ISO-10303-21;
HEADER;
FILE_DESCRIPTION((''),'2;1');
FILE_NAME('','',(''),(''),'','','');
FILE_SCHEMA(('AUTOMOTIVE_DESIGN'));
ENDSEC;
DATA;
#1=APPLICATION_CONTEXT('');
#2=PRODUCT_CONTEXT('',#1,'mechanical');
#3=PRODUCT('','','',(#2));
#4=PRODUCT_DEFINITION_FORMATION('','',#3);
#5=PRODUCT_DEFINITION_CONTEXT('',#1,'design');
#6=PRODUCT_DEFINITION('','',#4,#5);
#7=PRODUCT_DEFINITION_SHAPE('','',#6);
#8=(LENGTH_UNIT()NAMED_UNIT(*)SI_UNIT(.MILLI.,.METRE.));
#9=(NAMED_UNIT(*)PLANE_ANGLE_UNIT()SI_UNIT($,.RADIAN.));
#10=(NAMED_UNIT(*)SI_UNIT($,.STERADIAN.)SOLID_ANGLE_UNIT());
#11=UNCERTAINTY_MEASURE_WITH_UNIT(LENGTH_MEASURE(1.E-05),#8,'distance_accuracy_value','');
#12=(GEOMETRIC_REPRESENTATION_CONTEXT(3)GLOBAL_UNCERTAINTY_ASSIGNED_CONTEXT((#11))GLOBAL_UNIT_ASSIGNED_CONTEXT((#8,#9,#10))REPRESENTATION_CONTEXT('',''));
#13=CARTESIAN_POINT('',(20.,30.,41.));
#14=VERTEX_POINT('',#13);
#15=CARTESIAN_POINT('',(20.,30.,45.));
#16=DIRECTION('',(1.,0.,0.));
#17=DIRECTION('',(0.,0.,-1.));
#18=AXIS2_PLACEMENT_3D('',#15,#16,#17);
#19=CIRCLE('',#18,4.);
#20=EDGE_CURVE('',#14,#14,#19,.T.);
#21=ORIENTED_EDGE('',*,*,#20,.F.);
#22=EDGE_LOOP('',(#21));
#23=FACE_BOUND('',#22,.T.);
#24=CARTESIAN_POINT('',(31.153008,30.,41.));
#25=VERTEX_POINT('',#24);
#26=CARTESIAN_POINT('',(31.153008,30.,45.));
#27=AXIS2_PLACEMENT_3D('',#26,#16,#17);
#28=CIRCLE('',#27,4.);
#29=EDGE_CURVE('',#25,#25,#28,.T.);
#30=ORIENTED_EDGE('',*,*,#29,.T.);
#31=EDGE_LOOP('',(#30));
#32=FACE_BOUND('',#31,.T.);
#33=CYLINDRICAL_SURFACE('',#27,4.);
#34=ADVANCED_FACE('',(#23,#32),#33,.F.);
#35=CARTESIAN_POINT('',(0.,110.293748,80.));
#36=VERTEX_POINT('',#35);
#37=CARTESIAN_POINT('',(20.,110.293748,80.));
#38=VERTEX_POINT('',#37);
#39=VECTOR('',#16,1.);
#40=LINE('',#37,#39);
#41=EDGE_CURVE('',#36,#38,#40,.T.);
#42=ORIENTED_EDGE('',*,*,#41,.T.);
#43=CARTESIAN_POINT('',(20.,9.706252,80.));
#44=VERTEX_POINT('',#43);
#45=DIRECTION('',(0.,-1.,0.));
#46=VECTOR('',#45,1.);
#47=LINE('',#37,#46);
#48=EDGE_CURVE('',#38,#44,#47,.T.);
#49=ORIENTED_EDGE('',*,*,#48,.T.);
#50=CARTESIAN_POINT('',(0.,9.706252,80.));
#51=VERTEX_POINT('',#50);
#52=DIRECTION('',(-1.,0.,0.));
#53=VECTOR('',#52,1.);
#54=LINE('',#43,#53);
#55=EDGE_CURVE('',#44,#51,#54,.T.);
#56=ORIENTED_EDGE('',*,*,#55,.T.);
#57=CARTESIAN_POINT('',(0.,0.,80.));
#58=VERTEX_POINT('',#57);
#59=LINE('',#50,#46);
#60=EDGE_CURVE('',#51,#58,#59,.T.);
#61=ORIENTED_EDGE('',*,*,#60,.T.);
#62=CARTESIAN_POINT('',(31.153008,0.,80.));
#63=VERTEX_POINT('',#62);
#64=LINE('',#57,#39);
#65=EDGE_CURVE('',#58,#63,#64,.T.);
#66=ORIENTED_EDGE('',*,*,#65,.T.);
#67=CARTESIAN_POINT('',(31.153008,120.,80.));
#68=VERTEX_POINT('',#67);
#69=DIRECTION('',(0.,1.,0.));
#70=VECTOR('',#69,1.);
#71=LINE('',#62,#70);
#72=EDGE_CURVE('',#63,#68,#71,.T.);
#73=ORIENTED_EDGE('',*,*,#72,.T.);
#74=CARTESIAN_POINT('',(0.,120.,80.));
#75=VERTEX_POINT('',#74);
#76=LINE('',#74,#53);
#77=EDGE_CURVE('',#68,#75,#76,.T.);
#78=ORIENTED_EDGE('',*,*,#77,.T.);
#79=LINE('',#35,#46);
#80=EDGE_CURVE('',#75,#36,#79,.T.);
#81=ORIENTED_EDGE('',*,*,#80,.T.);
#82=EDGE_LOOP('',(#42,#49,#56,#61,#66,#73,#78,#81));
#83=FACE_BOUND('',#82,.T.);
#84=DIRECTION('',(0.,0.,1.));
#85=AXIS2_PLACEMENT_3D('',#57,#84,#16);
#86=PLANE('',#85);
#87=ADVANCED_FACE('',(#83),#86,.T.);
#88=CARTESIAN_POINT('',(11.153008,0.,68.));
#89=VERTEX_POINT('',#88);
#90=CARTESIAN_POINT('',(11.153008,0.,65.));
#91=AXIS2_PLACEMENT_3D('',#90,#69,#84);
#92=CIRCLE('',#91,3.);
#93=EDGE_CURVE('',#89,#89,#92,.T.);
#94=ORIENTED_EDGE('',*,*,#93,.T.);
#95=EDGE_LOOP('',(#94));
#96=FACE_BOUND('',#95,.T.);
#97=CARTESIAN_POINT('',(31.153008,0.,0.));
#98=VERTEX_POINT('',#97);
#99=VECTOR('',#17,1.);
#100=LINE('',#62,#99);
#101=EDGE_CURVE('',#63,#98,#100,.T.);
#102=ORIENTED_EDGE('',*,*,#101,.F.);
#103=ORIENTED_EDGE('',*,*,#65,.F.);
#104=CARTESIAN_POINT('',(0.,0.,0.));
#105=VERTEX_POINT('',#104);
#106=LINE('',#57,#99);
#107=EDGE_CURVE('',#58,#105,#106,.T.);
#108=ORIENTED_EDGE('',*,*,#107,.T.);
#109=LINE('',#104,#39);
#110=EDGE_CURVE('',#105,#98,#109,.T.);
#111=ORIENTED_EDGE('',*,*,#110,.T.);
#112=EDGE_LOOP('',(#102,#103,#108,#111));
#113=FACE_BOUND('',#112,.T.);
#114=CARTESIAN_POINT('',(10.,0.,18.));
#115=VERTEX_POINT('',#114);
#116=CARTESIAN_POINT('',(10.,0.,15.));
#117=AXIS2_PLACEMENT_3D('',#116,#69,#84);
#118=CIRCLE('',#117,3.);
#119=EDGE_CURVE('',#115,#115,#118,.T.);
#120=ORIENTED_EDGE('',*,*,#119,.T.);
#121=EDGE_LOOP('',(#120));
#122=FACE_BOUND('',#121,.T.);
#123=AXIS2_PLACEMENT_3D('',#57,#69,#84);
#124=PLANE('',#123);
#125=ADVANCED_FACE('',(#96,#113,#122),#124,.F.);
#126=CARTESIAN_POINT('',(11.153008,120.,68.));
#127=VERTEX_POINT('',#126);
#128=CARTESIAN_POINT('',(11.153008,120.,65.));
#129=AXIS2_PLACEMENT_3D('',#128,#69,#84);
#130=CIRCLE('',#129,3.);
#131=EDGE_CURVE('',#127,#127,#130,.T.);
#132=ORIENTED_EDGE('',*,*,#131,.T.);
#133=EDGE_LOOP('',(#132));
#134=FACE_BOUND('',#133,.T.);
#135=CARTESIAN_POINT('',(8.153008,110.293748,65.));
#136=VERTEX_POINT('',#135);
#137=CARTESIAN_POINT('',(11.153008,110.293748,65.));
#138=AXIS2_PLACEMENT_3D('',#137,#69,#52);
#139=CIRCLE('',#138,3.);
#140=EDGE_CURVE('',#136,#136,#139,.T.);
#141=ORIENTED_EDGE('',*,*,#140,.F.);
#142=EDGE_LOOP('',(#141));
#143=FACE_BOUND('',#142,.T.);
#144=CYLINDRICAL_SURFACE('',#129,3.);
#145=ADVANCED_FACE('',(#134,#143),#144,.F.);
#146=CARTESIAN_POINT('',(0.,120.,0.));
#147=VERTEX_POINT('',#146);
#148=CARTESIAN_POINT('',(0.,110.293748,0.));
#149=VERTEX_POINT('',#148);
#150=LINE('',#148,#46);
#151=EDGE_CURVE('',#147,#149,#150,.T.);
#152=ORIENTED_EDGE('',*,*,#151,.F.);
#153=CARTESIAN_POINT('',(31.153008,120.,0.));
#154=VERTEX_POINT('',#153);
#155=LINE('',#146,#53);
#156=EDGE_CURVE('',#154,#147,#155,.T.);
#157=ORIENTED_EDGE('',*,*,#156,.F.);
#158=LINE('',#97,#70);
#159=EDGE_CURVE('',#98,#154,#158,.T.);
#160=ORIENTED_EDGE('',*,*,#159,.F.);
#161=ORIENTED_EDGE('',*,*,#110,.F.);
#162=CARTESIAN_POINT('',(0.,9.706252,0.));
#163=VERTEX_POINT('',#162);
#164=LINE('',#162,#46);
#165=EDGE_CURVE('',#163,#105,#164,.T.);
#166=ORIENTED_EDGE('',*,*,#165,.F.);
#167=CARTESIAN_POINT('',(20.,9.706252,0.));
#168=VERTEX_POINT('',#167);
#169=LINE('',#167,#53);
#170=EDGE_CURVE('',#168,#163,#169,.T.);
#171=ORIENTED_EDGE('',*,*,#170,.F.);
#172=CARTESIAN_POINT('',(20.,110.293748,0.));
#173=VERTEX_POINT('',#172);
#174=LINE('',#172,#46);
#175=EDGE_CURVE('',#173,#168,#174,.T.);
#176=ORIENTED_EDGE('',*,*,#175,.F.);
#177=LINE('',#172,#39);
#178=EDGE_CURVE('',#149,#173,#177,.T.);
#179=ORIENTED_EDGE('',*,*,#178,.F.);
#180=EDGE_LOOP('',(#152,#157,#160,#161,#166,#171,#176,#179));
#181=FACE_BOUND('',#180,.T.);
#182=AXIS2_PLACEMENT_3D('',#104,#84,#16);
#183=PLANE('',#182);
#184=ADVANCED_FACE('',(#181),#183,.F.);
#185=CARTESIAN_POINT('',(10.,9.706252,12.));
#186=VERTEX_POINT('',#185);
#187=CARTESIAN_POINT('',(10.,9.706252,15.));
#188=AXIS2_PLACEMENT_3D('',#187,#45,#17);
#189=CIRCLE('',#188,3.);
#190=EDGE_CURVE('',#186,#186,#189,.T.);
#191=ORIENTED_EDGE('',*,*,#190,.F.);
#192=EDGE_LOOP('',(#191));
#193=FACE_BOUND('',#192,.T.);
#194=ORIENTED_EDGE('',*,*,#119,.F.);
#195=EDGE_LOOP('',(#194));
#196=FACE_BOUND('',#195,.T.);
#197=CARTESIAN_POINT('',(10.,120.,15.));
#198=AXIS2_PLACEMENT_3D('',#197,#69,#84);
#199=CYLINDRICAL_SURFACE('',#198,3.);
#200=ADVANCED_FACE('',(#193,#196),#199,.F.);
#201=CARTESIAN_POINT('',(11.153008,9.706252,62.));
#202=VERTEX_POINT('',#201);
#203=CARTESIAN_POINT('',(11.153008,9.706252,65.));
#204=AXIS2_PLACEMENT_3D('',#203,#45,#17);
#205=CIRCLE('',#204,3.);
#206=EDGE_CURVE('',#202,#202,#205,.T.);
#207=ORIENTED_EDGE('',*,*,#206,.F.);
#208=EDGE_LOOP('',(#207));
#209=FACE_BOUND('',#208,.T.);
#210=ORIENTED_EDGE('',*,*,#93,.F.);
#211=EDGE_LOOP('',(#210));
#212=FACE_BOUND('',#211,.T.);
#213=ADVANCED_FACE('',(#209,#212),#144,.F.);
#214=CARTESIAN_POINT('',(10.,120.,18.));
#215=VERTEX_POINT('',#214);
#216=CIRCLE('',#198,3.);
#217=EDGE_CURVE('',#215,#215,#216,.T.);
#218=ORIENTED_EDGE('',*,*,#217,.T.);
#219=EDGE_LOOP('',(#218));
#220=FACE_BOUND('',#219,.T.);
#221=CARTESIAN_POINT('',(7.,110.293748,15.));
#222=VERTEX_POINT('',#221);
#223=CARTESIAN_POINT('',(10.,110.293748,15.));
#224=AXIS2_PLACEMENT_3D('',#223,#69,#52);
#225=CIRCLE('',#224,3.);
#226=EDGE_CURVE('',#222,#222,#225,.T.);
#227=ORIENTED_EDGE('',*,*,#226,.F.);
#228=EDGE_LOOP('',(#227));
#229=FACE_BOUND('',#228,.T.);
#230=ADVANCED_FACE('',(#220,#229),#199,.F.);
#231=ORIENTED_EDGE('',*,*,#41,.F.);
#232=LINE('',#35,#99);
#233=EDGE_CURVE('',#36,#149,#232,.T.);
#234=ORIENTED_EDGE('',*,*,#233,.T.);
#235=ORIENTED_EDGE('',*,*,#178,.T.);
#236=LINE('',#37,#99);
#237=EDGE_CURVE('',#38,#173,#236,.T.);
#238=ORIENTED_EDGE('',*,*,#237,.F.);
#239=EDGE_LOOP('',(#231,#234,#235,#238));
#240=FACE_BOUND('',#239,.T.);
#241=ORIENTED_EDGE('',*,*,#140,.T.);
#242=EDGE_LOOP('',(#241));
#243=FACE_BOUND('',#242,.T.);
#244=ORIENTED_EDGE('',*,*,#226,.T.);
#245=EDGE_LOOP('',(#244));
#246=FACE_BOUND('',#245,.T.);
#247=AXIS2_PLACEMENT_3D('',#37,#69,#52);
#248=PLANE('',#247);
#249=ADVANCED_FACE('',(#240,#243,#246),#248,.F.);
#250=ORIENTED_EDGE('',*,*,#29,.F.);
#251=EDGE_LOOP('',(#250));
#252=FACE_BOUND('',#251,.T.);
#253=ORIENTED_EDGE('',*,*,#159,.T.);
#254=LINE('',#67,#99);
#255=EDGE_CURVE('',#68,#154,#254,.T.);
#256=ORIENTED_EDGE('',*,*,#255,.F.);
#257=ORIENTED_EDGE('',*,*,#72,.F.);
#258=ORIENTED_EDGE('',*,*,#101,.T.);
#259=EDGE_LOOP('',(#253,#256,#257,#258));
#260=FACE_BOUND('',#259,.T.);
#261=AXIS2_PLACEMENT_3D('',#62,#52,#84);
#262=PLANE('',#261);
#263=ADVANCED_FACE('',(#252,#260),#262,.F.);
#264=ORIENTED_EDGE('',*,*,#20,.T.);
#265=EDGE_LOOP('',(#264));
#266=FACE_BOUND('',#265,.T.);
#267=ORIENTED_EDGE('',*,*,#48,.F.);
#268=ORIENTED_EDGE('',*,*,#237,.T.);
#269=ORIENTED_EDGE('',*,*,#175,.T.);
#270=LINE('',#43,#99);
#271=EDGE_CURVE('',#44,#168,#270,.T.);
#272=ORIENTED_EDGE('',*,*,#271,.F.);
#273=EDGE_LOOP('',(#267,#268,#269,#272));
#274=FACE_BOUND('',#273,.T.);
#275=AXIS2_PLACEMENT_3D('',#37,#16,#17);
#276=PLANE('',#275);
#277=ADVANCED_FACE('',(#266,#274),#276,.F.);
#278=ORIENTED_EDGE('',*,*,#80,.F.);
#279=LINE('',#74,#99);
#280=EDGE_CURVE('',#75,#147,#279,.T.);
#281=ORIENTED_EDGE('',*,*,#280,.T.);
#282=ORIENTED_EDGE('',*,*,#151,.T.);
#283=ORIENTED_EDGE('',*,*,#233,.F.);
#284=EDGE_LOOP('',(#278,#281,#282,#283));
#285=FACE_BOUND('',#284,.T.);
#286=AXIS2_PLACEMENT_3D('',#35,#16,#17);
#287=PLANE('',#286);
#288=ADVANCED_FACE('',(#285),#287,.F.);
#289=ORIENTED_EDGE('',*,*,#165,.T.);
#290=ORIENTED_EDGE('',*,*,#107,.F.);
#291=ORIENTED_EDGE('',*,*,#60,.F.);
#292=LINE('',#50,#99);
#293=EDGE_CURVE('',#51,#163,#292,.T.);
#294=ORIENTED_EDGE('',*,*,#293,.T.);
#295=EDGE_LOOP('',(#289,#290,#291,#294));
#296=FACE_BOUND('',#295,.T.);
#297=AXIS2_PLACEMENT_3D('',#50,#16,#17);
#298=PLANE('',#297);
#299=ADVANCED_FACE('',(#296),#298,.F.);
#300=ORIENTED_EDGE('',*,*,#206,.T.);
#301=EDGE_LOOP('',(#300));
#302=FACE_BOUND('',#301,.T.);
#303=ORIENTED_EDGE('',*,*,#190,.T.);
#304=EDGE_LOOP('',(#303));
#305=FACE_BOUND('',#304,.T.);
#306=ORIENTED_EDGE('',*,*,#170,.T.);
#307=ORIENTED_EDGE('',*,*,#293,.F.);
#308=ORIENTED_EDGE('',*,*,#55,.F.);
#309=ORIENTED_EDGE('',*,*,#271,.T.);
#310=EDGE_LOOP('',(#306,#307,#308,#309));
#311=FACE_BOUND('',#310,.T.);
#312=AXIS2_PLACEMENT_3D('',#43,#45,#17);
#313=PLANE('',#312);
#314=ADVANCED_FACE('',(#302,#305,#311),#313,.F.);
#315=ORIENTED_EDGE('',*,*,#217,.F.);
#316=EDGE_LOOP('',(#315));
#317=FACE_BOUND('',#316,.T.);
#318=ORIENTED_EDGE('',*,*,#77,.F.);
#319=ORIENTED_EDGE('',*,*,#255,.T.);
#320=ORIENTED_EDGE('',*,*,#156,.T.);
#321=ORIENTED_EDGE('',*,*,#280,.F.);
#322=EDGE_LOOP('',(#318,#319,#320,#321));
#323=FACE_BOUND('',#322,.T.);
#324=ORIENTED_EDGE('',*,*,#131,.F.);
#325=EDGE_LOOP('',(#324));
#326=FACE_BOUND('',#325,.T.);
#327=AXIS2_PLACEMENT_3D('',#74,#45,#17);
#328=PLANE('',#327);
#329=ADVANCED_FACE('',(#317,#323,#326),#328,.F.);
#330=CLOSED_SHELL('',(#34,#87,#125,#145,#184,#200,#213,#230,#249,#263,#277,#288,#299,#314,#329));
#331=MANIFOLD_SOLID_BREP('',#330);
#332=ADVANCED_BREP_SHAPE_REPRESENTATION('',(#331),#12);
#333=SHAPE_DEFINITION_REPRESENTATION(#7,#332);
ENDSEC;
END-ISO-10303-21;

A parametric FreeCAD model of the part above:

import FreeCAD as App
import Part
import Sketcher
from FreeCAD import Vector


def add_polygon(sketch, points):
    """Adds a closed chain of lines whose ends are joined by coincident constraints."""
    first, n = sketch.GeometryCount, len(points)
    for a, b in zip(points, points[1:] + points[:1]):
        sketch.addGeometry(Part.LineSegment(App.Vector(*a, 0), App.Vector(*b, 0)), False)
    for i in range(n):
        sketch.addConstraint(Sketcher.Constraint("Coincident", first + i, 2, first + (i + 1) % n, 1))

doc = App.newDocument("Part")
body = doc.addObject("PartDesign::Body", "Body")

# Sketch on XY plane
sketch1 = body.newObject("Sketcher::SketchObject", "Sketch")
sketch1.AttachmentSupport = (doc.getObject("XY_Plane"), [""])
sketch1.MapMode = "FlatFace"
add_polygon(sketch1, [(0, 0), (31, 0), (31, 120), (0, 120), (0, 110), (20, 110), (20, 10), (0, 10)])  # lines 0-7
sketch1.addConstraint([
    Sketcher.Constraint("Horizontal", 0),
    Sketcher.Constraint("Vertical", 1),
    Sketcher.Constraint("Horizontal", 2),
    Sketcher.Constraint("Vertical", 3),
    Sketcher.Constraint("Horizontal", 4),
    Sketcher.Constraint("Vertical", 5),
    Sketcher.Constraint("Horizontal", 6),
    Sketcher.Constraint("Vertical", 7),
    Sketcher.Constraint("Coincident", 7, 2, -1, 1),
    Sketcher.Constraint("PointOnObject", 2, 2, -2),
    Sketcher.Constraint("Equal", 3, 7),
    Sketcher.Constraint("DistanceX", 4, 1, 4, 2, 20.0),
    Sketcher.Constraint("DistanceY", 1, 1, 1, 2, 120.0),
    Sketcher.Constraint("DistanceX", 0, 1, 0, 2, 31.153008),
    Sketcher.Constraint("DistanceY", 3, 2, 3, 1, 9.706252),
])
pad1 = body.newObject("PartDesign::Pad", "Pad")
pad1.Profile = sketch1
pad1.Length = 80

# Sketch on XZ plane
sketch2 = body.newObject("Sketcher::SketchObject", "Sketch001")
sketch2.AttachmentSupport = (doc.getObject("XZ_Plane"), [""])
sketch2.MapMode = "FlatFace"
sketch2.AttachmentOffset = App.Placement(Vector(0, 0, -120), App.Rotation())
sketch2.addGeometry(Part.Circle(Vector(10, 15, 0), Vector(0, 0, 1), 3), False)
sketch2.addConstraint([
    Sketcher.Constraint("Diameter", 0, 6.0),
    Sketcher.Constraint("DistanceX", -1, 1, 0, 3, 10.0),
    Sketcher.Constraint("DistanceY", -1, 1, 0, 3, 15.0),
])
doc.recompute()
hole = body.newObject("PartDesign::Hole", "Hole")
hole.Profile = sketch2
hole.ThreadType = "None"
hole.Diameter = 6
hole.DepthType = "ThroughAll"
hole.Reversed = True

# Sketch on YZ plane
sketch3 = body.newObject("Sketcher::SketchObject", "Sketch002")
sketch3.AttachmentSupport = (doc.getObject("YZ_Plane"), [""])
sketch3.MapMode = "FlatFace"
sketch3.AttachmentOffset = App.Placement(Vector(0, 0, 31.153008), App.Rotation())
sketch3.addGeometry(Part.Circle(Vector(30, 45, 0), Vector(0, 0, 1), 4), False)
sketch3.addConstraint([
    Sketcher.Constraint("Diameter", 0, 8.0),
    Sketcher.Constraint("DistanceX", -1, 1, 0, 3, 30.0),
    Sketcher.Constraint("DistanceY", -1, 1, 0, 3, 45.0),
])
doc.recompute()
hole2 = body.newObject("PartDesign::Hole", "Hole001")
hole2.Profile = sketch3
hole2.ThreadType = "None"
hole2.Diameter = 8
hole2.DepthType = "ThroughAll"

# Sketch on XZ plane
sketch4 = body.newObject("Sketcher::SketchObject", "Sketch003")
sketch4.AttachmentSupport = (doc.getObject("XZ_Plane"), [""])
sketch4.MapMode = "FlatFace"
sketch4.AttachmentOffset = App.Placement(Vector(0, 0, -120), App.Rotation())
sketch4.addGeometry(Part.Circle(Vector(11.2, 65, 0), Vector(0, 0, 1), 3), False)
sketch4.addConstraint([
    Sketcher.Constraint("Diameter", 0, 6.0),
    Sketcher.Constraint("DistanceY", -1, 1, 0, 3, 65.0),
    Sketcher.Constraint("DistanceX", -1, 1, 0, 3, 11.153008),
])
doc.recompute()
hole3 = body.newObject("PartDesign::Hole", "Hole002")
hole3.Profile = sketch4
hole3.ThreadType = "None"
hole3.Diameter = 6
hole3.DepthType = "ThroughAll"
hole3.Reversed = True

doc.recompute()
